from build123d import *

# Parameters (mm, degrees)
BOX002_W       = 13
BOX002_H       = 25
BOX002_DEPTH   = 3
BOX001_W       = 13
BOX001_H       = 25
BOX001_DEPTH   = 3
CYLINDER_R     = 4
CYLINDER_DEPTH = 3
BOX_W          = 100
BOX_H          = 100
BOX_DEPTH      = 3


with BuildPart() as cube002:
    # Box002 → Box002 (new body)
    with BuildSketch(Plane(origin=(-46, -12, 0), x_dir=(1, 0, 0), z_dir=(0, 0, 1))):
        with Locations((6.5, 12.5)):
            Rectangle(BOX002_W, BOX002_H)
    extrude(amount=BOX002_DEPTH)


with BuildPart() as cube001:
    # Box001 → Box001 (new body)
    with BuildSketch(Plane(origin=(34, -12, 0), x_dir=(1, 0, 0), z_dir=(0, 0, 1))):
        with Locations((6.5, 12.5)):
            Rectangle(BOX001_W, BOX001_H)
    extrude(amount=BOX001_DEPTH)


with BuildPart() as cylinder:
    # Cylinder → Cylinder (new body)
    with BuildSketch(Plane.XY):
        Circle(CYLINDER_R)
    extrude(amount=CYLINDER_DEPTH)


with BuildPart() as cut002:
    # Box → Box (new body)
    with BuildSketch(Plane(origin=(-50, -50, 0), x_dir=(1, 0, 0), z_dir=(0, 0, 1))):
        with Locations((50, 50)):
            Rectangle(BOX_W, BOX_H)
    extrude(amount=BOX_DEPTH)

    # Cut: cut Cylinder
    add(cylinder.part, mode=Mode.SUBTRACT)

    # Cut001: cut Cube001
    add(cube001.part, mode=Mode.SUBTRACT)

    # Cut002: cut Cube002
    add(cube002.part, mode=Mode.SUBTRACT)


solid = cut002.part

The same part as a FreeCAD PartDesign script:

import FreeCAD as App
import Part
import Sketcher
Q = App.Units.Quantity


def add_polygon(sketch, points):
    """Adds a closed chain of lines whose ends are joined by coincident constraints."""
    first, n = sketch.GeometryCount, len(points)
    for a, b in zip(points, points[1:] + points[:1]):
        sketch.addGeometry(Part.LineSegment(App.Vector(*a, 0), App.Vector(*b, 0)), False)
    for i in range(n):
        sketch.addConstraint(Sketcher.Constraint("Coincident", first + i, 2, first + (i + 1) % n, 1))

doc = App.newDocument("Part")
body = doc.addObject("PartDesign::Body", "Body")

# Sketch on XY plane
sketch1 = body.newObject("Sketcher::SketchObject", "Sketch")
sketch1.AttachmentSupport = (doc.getObject("XY_Plane"), [""])
sketch1.MapMode = "FlatFace"
add_polygon(sketch1, [(-46, 13), (-46, -12), (-33, -12), (-33, 13)])  # lines 0-3
sketch1.addConstraint([
    Sketcher.Constraint("Vertical", 0),
    Sketcher.Constraint("Horizontal", 1),
    Sketcher.Constraint("Vertical", 2),
    Sketcher.Constraint("Horizontal", 3),
    Sketcher.Constraint("DistanceX", 1, 1, 1, 2, Q("13 mm")),
    Sketcher.Constraint("DistanceY", 0, 2, 0, 1, Q("25 mm")),
    Sketcher.Constraint("DistanceX", 0, 2, -1, 1, Q("46 mm")),
    Sketcher.Constraint("DistanceY", 0, 2, -1, 1, Q("12 mm")),
])
pad1 = body.newObject("PartDesign::Pad", "Pad")
pad1.Profile = sketch1
pad1.Length = 3
body2 = doc.addObject("PartDesign::Body", "Body001")

# Sketch on XY plane
sketch2 = body2.newObject("Sketcher::SketchObject", "Sketch001")
sketch2.AttachmentSupport = (doc.getObject("XY_Plane001"), [""])
sketch2.MapMode = "FlatFace"
add_polygon(sketch2, [(34, 13), (34, -12), (47, -12), (47, 13)])  # lines 0-3
sketch2.addConstraint([
    Sketcher.Constraint("Vertical", 0),
    Sketcher.Constraint("Horizontal", 1),
    Sketcher.Constraint("Vertical", 2),
    Sketcher.Constraint("Horizontal", 3),
    Sketcher.Constraint("DistanceX", 1, 1, 1, 2, Q("13 mm")),
    Sketcher.Constraint("DistanceY", 0, 2, 0, 1, Q("25 mm")),
    Sketcher.Constraint("DistanceX", -1, 1, 0, 2, Q("34 mm")),
    Sketcher.Constraint("DistanceY", 0, 2, -1, 1, Q("12 mm")),
])
pad2 = body2.newObject("PartDesign::Pad", "Pad001")
pad2.Profile = sketch2
pad2.Length = 3
body3 = doc.addObject("PartDesign::Body", "Body002")

# Sketch on XY plane
sketch3 = body3.newObject("Sketcher::SketchObject", "Sketch002")
sketch3.AttachmentSupport = (doc.getObject("XY_Plane002"), [""])
sketch3.MapMode = "FlatFace"
sketch3.addGeometry(Part.Circle(App.Vector(0, 0, 0), App.Vector(0, 0, 1), 4), False)
sketch3.addConstraint([
    Sketcher.Constraint("Coincident", 0, 3, -1, 1),
    Sketcher.Constraint("Diameter", 0, Q("8 mm")),
])
pad3 = body3.newObject("PartDesign::Pad", "Pad002")
pad3.Profile = sketch3
pad3.Length = 3
body4 = doc.addObject("PartDesign::Body", "Body003")

# Sketch on XY plane
sketch4 = body4.newObject("Sketcher::SketchObject", "Sketch003")
sketch4.AttachmentSupport = (doc.getObject("XY_Plane003"), [""])
sketch4.MapMode = "FlatFace"
add_polygon(sketch4, [(-50, 50), (-50, -50), (50, -50), (50, 50)])  # lines 0-3
sketch4.addConstraint([
    Sketcher.Constraint("Vertical", 0),
    Sketcher.Constraint("Horizontal", 1),
    Sketcher.Constraint("Vertical", 2),
    Sketcher.Constraint("Horizontal", 3),
    Sketcher.Constraint("Symmetric", 0, 2, 2, 2, -1, 1),
    Sketcher.Constraint("Equal", 3, 0),
    Sketcher.Constraint("DistanceX", 1, 1, 1, 2, Q("100 mm")),
])
pad4 = body4.newObject("PartDesign::Pad", "Pad003")
pad4.Profile = sketch4
pad4.Length = 3
doc.recompute()

boolean = body4.newObject("PartDesign::Boolean", "Boolean")
boolean.Type = "Cut"
boolean.addObjects([body3])
doc.recompute()

boolean2 = body4.newObject("PartDesign::Boolean", "Boolean001")
boolean2.Type = "Cut"
boolean2.addObjects([body2])
doc.recompute()

boolean3 = body4.newObject("PartDesign::Boolean", "Boolean002")
boolean3.Type = "Cut"
boolean3.addObjects([body])

doc.recompute()
